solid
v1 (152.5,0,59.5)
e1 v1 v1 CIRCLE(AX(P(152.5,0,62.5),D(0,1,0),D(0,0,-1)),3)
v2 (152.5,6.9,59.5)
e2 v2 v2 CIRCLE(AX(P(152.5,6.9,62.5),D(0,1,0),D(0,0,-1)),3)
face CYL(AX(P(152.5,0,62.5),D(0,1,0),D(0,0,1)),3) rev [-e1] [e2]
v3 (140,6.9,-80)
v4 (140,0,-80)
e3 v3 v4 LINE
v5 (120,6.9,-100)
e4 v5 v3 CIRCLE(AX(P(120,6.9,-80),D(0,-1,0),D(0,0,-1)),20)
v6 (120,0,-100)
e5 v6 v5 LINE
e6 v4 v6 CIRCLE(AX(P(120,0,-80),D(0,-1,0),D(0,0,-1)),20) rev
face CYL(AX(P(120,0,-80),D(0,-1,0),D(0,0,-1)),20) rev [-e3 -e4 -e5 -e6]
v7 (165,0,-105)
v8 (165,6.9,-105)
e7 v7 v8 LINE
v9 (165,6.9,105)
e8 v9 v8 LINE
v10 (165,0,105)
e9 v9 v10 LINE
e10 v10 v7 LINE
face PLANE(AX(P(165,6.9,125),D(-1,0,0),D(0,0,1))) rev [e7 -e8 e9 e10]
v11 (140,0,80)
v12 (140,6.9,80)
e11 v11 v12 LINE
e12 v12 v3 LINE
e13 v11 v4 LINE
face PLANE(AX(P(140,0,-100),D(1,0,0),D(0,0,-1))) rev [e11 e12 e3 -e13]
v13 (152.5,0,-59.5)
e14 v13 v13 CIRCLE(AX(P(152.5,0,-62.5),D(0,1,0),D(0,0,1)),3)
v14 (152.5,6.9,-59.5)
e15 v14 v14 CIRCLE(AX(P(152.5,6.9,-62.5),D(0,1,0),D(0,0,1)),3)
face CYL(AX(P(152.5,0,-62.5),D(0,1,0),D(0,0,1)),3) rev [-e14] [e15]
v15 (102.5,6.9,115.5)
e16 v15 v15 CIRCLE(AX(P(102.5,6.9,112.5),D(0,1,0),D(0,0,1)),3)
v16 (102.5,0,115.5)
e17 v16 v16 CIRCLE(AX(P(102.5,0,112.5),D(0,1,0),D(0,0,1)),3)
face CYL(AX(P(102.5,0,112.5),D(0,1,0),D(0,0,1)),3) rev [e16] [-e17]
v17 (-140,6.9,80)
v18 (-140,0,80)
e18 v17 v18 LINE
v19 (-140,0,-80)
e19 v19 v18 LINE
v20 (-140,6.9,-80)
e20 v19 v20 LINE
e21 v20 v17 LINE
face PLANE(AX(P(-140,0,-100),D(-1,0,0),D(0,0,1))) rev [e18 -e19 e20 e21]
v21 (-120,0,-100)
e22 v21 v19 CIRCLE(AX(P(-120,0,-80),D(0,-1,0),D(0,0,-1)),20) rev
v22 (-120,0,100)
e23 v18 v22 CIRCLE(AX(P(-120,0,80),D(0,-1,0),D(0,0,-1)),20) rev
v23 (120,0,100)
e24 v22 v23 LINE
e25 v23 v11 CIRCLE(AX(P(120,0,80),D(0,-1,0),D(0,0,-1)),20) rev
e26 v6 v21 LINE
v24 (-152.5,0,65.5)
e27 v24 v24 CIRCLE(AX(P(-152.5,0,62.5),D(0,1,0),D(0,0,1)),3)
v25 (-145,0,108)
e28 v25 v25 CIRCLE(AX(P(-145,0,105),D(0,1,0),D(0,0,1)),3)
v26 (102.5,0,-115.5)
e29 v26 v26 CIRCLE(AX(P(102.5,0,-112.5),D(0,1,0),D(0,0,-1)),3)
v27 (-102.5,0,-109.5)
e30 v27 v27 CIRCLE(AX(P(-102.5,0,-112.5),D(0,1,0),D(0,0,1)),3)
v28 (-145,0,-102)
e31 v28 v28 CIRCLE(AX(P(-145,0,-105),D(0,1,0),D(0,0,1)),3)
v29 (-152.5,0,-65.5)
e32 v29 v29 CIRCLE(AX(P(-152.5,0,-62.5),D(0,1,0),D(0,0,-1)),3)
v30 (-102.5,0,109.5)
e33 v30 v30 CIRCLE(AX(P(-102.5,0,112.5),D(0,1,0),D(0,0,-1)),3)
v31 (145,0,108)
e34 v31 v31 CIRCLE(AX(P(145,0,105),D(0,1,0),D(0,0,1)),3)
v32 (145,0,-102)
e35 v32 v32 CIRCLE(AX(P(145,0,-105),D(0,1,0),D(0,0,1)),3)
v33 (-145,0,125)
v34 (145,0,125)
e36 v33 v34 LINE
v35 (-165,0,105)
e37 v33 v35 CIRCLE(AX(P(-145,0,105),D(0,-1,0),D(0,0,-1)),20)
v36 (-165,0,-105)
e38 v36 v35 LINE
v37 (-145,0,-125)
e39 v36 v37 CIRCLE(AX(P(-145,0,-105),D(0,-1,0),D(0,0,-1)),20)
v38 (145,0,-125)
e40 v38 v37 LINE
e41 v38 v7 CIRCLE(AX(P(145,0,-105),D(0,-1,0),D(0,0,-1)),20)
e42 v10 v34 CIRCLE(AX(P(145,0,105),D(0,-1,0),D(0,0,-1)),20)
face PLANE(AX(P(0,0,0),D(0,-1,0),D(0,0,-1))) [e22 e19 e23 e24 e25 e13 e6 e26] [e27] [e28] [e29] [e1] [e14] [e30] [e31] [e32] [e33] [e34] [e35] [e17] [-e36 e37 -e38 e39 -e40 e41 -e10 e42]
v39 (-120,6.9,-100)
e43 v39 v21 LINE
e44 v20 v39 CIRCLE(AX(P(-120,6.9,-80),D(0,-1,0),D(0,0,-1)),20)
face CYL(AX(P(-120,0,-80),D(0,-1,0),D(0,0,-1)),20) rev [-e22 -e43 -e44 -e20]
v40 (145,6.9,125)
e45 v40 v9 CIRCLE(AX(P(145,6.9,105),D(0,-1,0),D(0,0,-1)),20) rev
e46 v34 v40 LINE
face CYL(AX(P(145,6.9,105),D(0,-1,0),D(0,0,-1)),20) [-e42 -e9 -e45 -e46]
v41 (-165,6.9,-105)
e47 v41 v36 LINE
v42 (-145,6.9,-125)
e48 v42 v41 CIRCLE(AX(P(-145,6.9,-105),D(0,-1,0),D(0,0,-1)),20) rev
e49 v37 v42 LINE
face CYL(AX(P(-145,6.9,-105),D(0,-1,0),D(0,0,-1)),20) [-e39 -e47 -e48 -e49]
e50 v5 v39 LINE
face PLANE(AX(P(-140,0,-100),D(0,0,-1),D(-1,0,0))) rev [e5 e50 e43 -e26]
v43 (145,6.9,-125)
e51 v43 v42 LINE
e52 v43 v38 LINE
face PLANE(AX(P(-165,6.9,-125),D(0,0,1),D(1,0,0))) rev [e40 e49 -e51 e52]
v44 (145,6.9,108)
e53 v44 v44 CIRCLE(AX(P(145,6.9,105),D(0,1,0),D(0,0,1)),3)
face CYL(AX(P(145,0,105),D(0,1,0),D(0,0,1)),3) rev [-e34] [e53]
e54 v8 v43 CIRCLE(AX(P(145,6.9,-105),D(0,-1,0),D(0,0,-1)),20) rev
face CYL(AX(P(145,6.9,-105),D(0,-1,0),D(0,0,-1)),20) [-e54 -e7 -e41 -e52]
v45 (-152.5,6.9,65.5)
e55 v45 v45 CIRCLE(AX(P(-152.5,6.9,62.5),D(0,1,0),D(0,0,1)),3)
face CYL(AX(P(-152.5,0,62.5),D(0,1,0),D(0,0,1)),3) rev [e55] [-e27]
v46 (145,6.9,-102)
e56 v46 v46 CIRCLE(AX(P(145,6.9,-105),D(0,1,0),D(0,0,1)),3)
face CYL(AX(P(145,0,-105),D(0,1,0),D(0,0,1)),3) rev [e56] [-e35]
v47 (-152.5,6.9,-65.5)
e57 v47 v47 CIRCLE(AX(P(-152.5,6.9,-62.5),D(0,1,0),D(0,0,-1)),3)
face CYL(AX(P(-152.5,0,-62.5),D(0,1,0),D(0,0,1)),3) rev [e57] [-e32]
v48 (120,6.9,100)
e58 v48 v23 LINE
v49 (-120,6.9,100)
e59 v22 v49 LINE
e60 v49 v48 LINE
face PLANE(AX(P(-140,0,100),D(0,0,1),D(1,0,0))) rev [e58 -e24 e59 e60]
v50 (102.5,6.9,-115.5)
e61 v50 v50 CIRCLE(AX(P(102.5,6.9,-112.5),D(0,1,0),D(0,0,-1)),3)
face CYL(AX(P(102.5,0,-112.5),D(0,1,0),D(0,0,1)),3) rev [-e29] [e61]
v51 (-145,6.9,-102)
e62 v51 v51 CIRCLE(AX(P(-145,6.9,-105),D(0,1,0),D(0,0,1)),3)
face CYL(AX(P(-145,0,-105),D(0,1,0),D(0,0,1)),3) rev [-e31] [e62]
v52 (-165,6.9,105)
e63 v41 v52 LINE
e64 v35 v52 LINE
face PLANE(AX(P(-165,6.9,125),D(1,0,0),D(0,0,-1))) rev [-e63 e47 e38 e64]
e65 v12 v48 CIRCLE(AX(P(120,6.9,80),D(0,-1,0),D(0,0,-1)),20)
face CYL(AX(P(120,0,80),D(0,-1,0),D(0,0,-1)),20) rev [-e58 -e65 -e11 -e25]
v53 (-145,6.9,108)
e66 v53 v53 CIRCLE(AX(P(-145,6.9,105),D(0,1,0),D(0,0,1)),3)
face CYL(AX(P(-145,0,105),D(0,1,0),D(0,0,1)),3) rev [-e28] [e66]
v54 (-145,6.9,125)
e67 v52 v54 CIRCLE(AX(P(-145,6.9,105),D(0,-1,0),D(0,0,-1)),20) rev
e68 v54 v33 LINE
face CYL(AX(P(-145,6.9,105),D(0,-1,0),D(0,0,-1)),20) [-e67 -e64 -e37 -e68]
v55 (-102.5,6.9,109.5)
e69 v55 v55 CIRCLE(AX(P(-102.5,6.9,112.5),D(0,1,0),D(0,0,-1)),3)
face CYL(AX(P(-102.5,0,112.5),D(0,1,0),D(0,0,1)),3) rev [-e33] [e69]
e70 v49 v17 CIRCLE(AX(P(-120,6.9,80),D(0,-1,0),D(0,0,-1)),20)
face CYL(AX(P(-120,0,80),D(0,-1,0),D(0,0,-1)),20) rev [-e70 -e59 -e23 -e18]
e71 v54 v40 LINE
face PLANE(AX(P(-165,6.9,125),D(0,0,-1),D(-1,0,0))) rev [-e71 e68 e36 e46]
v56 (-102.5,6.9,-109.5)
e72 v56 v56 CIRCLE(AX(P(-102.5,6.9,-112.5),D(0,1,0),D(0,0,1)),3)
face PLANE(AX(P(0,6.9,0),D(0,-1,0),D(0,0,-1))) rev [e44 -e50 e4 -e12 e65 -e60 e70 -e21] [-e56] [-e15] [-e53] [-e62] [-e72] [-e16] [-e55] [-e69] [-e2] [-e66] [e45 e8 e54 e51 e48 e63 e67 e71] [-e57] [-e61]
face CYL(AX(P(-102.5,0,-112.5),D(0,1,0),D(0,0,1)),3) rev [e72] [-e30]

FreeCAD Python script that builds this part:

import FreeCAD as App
import Part
import Sketcher
from FreeCAD import Vector


def edges_at(feature, points):
    """Names of the edges that pass closest to the given points."""
    edges = feature.Shape.Edges
    near = lambda p: min(range(len(edges)), key=lambda i: edges[i].distToShape(Part.Vertex(*p))[0])
    return sorted({f"Edge{near(p) + 1}" for p in points})


def add_polygon(sketch, points):
    """Adds a closed chain of lines whose ends are joined by coincident constraints."""
    first, n = sketch.GeometryCount, len(points)
    for a, b in zip(points, points[1:] + points[:1]):
        sketch.addGeometry(Part.LineSegment(App.Vector(*a, 0), App.Vector(*b, 0)), False)
    for i in range(n):
        sketch.addConstraint(Sketcher.Constraint("Coincident", first + i, 2, first + (i + 1) % n, 1))

doc = App.newDocument("Part")
params = doc.addObject("Spreadsheet::Sheet", "Params")
for row, (alias, value) in enumerate([
    ("sketch1_width", "330 mm"),
    ("sketch1_height", "250 mm"),
    ("pad1_length", "6.9 mm"),
    ("sketch2_diameter", "6 mm"),
    ("sketch3_width", "280 mm"),
    ("sketch3_height", "200 mm"),
    ("fillet_radius", "20 mm"),
    ("fillet2_radius", "20 mm"),
    ("sketch4_diameter", "6 mm"),
], start=1):
    params.set(f"A{row}", alias)
    params.set(f"B{row}", "=" + value)
    params.setAlias(f"B{row}", alias)

body = doc.addObject("PartDesign::Body", "Body")

# Sketch on XZ plane
sketch1 = body.newObject("Sketcher::SketchObject", "Sketch")
sketch1.AttachmentSupport = (doc.getObject("XZ_Plane"), [""])
sketch1.MapMode = "FlatFace"
add_polygon(sketch1, [(-165, -125), (-165, 125), (165, 125), (165, -125)])  # lines 0-3
sketch1.addConstraint(Sketcher.Constraint("Vertical", 0))
sketch1.addConstraint(Sketcher.Constraint("Horizontal", 1))
sketch1.addConstraint(Sketcher.Constraint("Vertical", 2))
sketch1.addConstraint(Sketcher.Constraint("Horizontal", 3))
sketch1.addConstraint(Sketcher.Constraint("Symmetric", 0, 2, 2, 2, -1, 1))
sketch1.addConstraint(Sketcher.Constraint("DistanceX", 1, 1, 1, 2, 330.0))
sketch1.addConstraint(Sketcher.Constraint("DistanceY", 0, 1, 0, 2, 250.0))
sketch1.setExpression("Constraints[9]", "Params.sketch1_width")
sketch1.setExpression("Constraints[10]", "Params.sketch1_height")
pad1 = body.newObject("PartDesign::Pad", "Pad")
pad1.Profile = sketch1
pad1.setExpression("Length", "Params.pad1_length")
pad1.Reversed = True

# Sketch on XZ plane
sketch2 = body.newObject("Sketcher::SketchObject", "Sketch001")
sketch2.AttachmentSupport = (doc.getObject("XZ_Plane"), [""])
sketch2.MapMode = "FlatFace"
sketch2.AttachmentOffset = App.Placement(Vector(0, 0, -6.9), App.Rotation())
sketch2.addGeometry(Part.Circle(Vector(-145, -105, 0), Vector(0, 0, 1), 3), False)
sketch2.addGeometry(Part.Circle(Vector(145, -105, 0), Vector(0, 0, 1), 3), False)
sketch2.addGeometry(Part.Circle(Vector(145, 105, 0), Vector(0, 0, 1), 3), False)
sketch2.addGeometry(Part.Circle(Vector(-145, 105, 0), Vector(0, 0, 1), 3), False)
sketch2.addConstraint(Sketcher.Constraint("Equal", 0, 1))
sketch2.addConstraint(Sketcher.Constraint("Equal", 1, 2))
sketch2.addConstraint(Sketcher.Constraint("Equal", 2, 3))
sketch2.addConstraint(Sketcher.Constraint("Symmetric", 0, 3, 2, 3, -1, 1))
sketch2.addConstraint(Sketcher.Constraint("Symmetric", 1, 3, 3, 3, -1, 1))
sketch2.addConstraint(Sketcher.Constraint("Symmetric", 0, 3, 1, 3, -2))
sketch2.addConstraint(Sketcher.Constraint("Diameter", 0, 6.0))
sketch2.addConstraint(Sketcher.Constraint("DistanceX", 0, 3, -1, 1, 145.0))
sketch2.addConstraint(Sketcher.Constraint("DistanceY", 0, 3, -1, 1, 105.0))
sketch2.setExpression("Constraints[6]", "Params.sketch2_diameter")
pocket1 = body.newObject("PartDesign::Pocket", "Pocket")
pocket1.Profile = sketch2
pocket1.Type = "ThroughAll"
pocket1.Reversed = True

# Sketch on XZ plane
sketch3 = body.newObject("Sketcher::SketchObject", "Sketch002")
sketch3.AttachmentSupport = (doc.getObject("XZ_Plane"), [""])
sketch3.MapMode = "FlatFace"
sketch3.AttachmentOffset = App.Placement(Vector(0, 0, -6.9), App.Rotation())
add_polygon(sketch3, [(-140, -100), (-140, 100), (140, 100), (140, -100)])  # lines 0-3
sketch3.addConstraint(Sketcher.Constraint("Vertical", 0))
sketch3.addConstraint(Sketcher.Constraint("Horizontal", 1))
sketch3.addConstraint(Sketcher.Constraint("Vertical", 2))
sketch3.addConstraint(Sketcher.Constraint("Horizontal", 3))
sketch3.addConstraint(Sketcher.Constraint("Symmetric", 0, 2, 2, 2, -1, 1))
sketch3.addConstraint(Sketcher.Constraint("DistanceX", 1, 1, 1, 2, 280.0))
sketch3.addConstraint(Sketcher.Constraint("DistanceY", 0, 1, 0, 2, 200.0))
sketch3.setExpression("Constraints[9]", "Params.sketch3_width")
sketch3.setExpression("Constraints[10]", "Params.sketch3_height")
pocket2 = body.newObject("PartDesign::Pocket", "Pocket001")
pocket2.Profile = sketch3
pocket2.Type = "ThroughAll"
pocket2.Reversed = True
doc.recompute()

fillet = body.newObject("PartDesign::Fillet", "Fillet")
fillet.Base = (pocket2, edges_at(pocket2, [
    (-165, 3.45, -125),
    (165, 3.45, -125),
    (165, 3.45, 125),
    (-165, 3.45, 125),
]))
fillet.setExpression("Radius", "Params.fillet_radius")
doc.recompute()

fillet2 = body.newObject("PartDesign::Fillet", "Fillet001")
fillet2.Base = (fillet, edges_at(fillet, [
    (-140, 3.45, 100),
    (-140, 3.45, -100),
    (140, 3.45, -100),
    (140, 3.45, 100),
]))
fillet2.setExpression("Radius", "Params.fillet2_radius")

# Sketch on XZ plane
sketch4 = body.newObject("Sketcher::SketchObject", "Sketch003")
sketch4.AttachmentSupport = (doc.getObject("XZ_Plane"), [""])
sketch4.MapMode = "FlatFace"
sketch4.AttachmentOffset = App.Placement(Vector(0, 0, -6.9), App.Rotation())
sketch4.addGeometry(Part.Circle(Vector(-152.5, 62.5, 0), Vector(0, 0, 1), 3), False)
sketch4.addGeometry(Part.Circle(Vector(-102.5, 112.5, 0), Vector(0, 0, 1), 3), False)
sketch4.addGeometry(Part.Circle(Vector(102.5, 112.5, 0), Vector(0, 0, 1), 3), False)
sketch4.addGeometry(Part.Circle(Vector(152.5, 62.5, 0), Vector(0, 0, 1), 3), False)
sketch4.addGeometry(Part.Circle(Vector(152.5, -62.5, 0), Vector(0, 0, 1), 3), False)
sketch4.addGeometry(Part.Circle(Vector(102.5, -112.5, 0), Vector(0, 0, 1), 3), False)
sketch4.addGeometry(Part.Circle(Vector(-102.5, -112.5, 0), Vector(0, 0, 1), 3), False)
sketch4.addGeometry(Part.Circle(Vector(-152.5, -62.5, 0), Vector(0, 0, 1), 3), False)
sketch4.addConstraint(Sketcher.Constraint("Equal", 0, 1))
sketch4.addConstraint(Sketcher.Constraint("Equal", 1, 2))
sketch4.addConstraint(Sketcher.Constraint("Equal", 2, 3))
sketch4.addConstraint(Sketcher.Constraint("Equal", 3, 4))
sketch4.addConstraint(Sketcher.Constraint("Equal", 4, 5))
sketch4.addConstraint(Sketcher.Constraint("Equal", 5, 6))
sketch4.addConstraint(Sketcher.Constraint("Equal", 6, 7))
sketch4.addConstraint(Sketcher.Constraint("Symmetric", 0, 3, 4, 3, -1, 1))
sketch4.addConstraint(Sketcher.Constraint("Symmetric", 1, 3, 5, 3, -1, 1))
sketch4.addConstraint(Sketcher.Constraint("Symmetric", 2, 3, 6, 3, -1, 1))
sketch4.addConstraint(Sketcher.Constraint("Symmetric", 3, 3, 7, 3, -1, 1))
sketch4.addConstraint(Sketcher.Constraint("Symmetric", 1, 3, 2, 3, -2))
sketch4.addConstraint(Sketcher.Constraint("Symmetric", 0, 3, 3, 3, -2))
sketch4.addConstraint(Sketcher.Constraint("Diameter", 0, 6.0))
sketch4.addConstraint(Sketcher.Constraint("DistanceX", 0, 3, 1, 3, 50.0))
sketch4.addConstraint(Sketcher.Constraint("DistanceY", 0, 3, 1, 3, 50.0))
sketch4.addConstraint(Sketcher.Constraint("DistanceX", 1, 3, 2, 3, 205.0))
sketch4.addConstraint(Sketcher.Constraint("DistanceY", 4, 3, 3, 3, 125.0))
sketch4.setExpression("Constraints[13]", "Params.sketch4_diameter")
pocket3 = body.newObject("PartDesign::Pocket", "Pocket002")
pocket3.Profile = sketch4
pocket3.Type = "ThroughAll"
pocket3.Reversed = True

doc.recompute()
